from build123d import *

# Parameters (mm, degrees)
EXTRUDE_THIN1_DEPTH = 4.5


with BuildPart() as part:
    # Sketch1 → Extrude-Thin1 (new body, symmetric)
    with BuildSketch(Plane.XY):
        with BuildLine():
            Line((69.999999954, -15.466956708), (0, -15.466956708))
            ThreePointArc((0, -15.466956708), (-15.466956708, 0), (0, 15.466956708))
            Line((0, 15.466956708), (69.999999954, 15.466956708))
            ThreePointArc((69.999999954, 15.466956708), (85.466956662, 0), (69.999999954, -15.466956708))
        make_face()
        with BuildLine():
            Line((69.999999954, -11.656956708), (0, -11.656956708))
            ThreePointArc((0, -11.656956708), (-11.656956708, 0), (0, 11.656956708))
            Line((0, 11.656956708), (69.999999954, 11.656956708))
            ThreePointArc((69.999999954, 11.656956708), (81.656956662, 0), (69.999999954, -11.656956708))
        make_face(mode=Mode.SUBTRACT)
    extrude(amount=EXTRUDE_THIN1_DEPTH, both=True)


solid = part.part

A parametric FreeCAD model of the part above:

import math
import FreeCAD as App
import Part
import Sketcher
from FreeCAD import Vector
Q = App.Units.Quantity

doc = App.newDocument("Part")
body = doc.addObject("PartDesign::Body", "Body")

# Sketch on XY plane
sketch1 = body.newObject("Sketcher::SketchObject", "Sketch")
sketch1.AttachmentSupport = (doc.getObject("XY_Plane"), [""])
sketch1.MapMode = "FlatFace"
sketch1.addGeometry([
    Part.LineSegment(Vector(0, -15, 0), Vector(70, -15, 0)),  # 0
    Part.ArcOfCircle(Part.Circle(Vector(70, 0, 0), Vector(0, 0, 1), 15), math.radians(-90), math.radians(90)),  # 1
    Part.LineSegment(Vector(70, 15, 0), Vector(0, 15, 0)),  # 2
    Part.ArcOfCircle(Part.Circle(Vector(0, 0, 0), Vector(0, 0, 1), 15), math.radians(90), math.radians(270)),  # 3
    Part.LineSegment(Vector(70, -12, 0), Vector(0, -12, 0)),  # 4
    Part.ArcOfCircle(Part.Circle(Vector(0, 0, 0), Vector(0, 0, 1), 12), math.radians(90), math.radians(270)),  # 5
    Part.LineSegment(Vector(0, 12, 0), Vector(70, 12, 0)),  # 6
    Part.ArcOfCircle(Part.Circle(Vector(70, 0, 0), Vector(0, 0, 1), 12), math.radians(-90), math.radians(90)),  # 7
], False)
sketch1.addConstraint([
    Sketcher.Constraint("Tangent", 0, 2, 1, 1),
    Sketcher.Constraint("Tangent", 1, 2, 2, 1),
    Sketcher.Constraint("Tangent", 2, 2, 3, 1),
    Sketcher.Constraint("Tangent", 3, 2, 0, 1),
    Sketcher.Constraint("Tangent", 4, 2, 5, 2),
    Sketcher.Constraint("Tangent", 5, 1, 6, 1),
    Sketcher.Constraint("Tangent", 6, 2, 7, 2),
    Sketcher.Constraint("Tangent", 7, 1, 4, 1),
    Sketcher.Constraint("Horizontal", 0),
    Sketcher.Constraint("Horizontal", 2),
    Sketcher.Constraint("Horizontal", 4),
    Sketcher.Constraint("Horizontal", 6),
    Sketcher.Constraint("Coincident", 3, 3, -1, 1),
    Sketcher.Constraint("Coincident", 5, 3, -1, 1),
    Sketcher.Constraint("Vertical", 7, 3, 0, 2),
    Sketcher.Constraint("DistanceX", 0, 1, 0, 2, Q("70 mm")),
    Sketcher.Constraint("DistanceY", 3, 2, 4, 2, Q("3.81 mm")),
    Sketcher.Constraint("Radius", 1, Q("15.466957 mm")),
])
pad1 = body.newObject("PartDesign::Pad", "Pad")
pad1.Profile = sketch1
pad1.Length = 9
pad1.Midplane = True

doc.recompute()
